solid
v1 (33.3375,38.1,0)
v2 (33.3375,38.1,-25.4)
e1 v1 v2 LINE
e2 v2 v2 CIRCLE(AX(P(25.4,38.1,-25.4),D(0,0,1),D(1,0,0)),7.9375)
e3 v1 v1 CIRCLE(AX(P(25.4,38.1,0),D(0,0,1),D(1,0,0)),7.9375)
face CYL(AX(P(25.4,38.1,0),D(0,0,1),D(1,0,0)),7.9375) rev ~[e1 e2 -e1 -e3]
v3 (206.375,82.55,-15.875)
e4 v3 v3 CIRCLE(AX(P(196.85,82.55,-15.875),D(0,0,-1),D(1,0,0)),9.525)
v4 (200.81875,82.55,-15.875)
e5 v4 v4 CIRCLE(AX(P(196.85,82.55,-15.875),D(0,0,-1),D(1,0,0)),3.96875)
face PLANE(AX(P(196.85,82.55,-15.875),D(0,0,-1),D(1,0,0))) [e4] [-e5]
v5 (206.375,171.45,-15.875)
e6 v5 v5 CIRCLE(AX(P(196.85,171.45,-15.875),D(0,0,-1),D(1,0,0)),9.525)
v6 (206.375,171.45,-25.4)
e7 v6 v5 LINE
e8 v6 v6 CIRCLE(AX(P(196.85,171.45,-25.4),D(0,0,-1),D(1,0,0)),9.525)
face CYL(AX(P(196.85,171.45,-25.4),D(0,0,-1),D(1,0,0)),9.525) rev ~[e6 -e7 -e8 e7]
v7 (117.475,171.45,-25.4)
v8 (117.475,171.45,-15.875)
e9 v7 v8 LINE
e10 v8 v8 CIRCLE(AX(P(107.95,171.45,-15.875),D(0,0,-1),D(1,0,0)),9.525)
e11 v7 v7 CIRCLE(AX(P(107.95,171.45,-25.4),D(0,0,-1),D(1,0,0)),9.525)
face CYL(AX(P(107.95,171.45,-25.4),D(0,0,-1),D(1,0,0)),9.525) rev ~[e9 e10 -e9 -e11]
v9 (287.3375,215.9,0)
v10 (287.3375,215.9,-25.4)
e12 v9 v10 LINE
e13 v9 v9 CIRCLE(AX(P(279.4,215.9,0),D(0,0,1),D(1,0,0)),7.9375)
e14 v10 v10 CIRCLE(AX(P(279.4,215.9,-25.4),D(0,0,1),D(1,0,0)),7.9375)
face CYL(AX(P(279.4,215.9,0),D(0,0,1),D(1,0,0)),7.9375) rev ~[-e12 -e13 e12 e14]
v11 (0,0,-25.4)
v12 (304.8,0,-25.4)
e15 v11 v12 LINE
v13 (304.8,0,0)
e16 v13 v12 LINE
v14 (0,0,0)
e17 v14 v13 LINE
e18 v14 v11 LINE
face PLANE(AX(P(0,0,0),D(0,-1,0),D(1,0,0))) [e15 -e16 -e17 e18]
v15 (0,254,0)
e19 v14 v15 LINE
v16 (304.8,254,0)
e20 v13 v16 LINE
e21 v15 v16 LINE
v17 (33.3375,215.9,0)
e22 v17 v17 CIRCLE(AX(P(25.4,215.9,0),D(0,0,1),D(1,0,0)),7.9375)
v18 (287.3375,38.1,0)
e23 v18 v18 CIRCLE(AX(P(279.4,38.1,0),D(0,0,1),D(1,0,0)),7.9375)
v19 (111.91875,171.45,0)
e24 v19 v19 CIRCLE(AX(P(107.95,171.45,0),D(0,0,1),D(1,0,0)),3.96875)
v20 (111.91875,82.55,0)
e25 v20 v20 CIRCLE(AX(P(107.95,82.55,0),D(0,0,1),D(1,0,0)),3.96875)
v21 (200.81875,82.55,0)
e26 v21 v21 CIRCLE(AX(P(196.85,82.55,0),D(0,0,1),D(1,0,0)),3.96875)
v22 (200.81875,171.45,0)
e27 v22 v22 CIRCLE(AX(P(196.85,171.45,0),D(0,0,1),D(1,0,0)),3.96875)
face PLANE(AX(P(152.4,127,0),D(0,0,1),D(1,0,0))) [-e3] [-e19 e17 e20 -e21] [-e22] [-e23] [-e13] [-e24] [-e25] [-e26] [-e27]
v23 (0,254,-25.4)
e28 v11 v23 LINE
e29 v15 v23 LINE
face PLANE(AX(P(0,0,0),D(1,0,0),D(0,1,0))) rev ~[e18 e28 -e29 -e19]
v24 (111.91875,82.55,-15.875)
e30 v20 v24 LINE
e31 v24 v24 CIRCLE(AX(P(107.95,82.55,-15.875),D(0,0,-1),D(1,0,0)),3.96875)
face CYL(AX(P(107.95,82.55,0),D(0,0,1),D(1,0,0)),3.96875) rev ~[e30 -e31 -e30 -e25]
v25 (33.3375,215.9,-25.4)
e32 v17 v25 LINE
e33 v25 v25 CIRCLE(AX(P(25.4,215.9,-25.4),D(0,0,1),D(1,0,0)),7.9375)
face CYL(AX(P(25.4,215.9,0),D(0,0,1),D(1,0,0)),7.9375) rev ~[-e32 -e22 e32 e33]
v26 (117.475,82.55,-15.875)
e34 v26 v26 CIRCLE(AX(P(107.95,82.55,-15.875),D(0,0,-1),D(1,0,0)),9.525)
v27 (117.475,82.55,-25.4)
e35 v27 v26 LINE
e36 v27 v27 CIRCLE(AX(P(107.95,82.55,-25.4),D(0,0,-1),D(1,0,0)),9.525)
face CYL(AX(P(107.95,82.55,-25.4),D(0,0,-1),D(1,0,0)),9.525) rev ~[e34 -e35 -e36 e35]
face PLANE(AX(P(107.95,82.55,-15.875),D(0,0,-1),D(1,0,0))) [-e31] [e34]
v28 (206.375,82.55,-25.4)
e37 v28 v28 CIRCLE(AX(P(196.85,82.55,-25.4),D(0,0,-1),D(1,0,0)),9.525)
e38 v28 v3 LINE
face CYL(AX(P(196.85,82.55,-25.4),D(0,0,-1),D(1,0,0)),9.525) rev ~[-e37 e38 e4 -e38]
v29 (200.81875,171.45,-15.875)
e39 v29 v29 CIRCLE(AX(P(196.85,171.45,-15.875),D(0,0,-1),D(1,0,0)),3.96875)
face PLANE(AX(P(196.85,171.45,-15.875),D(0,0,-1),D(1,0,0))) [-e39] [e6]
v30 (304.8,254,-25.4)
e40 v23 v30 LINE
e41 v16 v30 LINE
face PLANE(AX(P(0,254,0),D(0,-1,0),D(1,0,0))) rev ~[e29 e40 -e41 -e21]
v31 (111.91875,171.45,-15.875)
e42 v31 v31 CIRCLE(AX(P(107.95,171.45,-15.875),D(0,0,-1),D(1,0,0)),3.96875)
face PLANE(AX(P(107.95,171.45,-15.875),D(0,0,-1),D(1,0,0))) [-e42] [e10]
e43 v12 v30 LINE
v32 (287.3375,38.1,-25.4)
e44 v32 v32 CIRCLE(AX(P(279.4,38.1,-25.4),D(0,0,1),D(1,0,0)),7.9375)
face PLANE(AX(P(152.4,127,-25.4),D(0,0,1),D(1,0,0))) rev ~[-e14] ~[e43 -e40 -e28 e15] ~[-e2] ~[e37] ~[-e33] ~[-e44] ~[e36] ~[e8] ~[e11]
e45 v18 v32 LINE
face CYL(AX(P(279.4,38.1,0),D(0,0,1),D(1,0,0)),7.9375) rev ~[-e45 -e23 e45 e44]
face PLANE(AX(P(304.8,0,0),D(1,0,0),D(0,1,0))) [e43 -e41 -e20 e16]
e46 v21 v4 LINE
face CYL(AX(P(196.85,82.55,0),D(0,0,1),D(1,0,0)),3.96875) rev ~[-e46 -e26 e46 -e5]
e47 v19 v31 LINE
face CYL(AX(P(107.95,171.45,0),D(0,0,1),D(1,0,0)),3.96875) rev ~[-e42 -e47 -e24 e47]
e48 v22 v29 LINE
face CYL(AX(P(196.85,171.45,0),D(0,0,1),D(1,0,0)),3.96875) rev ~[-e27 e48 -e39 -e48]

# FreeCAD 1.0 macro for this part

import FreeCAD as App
import Part
import Sketcher
Q = App.Units.Quantity

doc = App.newDocument("Part")
body = doc.addObject("PartDesign::Body", "Body")

sketch1 = body.newObject("Sketcher::SketchObject", "Sketch")
sketch1.AttachmentSupport = (doc.getObject("XY_Plane"), [""])
sketch1.MapMode = "FlatFace"
sketch1.addGeometry([
    Part.LineSegment(App.Vector(0, 254, 0), App.Vector(0, 0, 0)),
    Part.LineSegment(App.Vector(0, 0, 0), App.Vector(305, 0, 0)),
    Part.LineSegment(App.Vector(305, 0, 0), App.Vector(305, 254, 0)),
    Part.LineSegment(App.Vector(305, 254, 0), App.Vector(0, 254, 0)),
], False)
sketch1.addConstraint([
    Sketcher.Constraint("Coincident", 0, 2, 1, 1),
    Sketcher.Constraint("Coincident", 1, 2, 2, 1),
    Sketcher.Constraint("Coincident", 2, 2, 3, 1),
    Sketcher.Constraint("Coincident", 3, 2, 0, 1),
    Sketcher.Constraint("Vertical", 0),
    Sketcher.Constraint("Horizontal", 1),
    Sketcher.Constraint("Vertical", 2),
    Sketcher.Constraint("Horizontal", 3),
    Sketcher.Constraint("Coincident", 0, 2, -1, 1),
    Sketcher.Constraint("DistanceX", 1, 1, 1, 2, Q("12 in")),
    Sketcher.Constraint("DistanceY", 0, 2, 0, 1, Q("10 in")),
])
pad1 = body.newObject("PartDesign::Pad", "Pad")
pad1.Profile = sketch1
pad1.Length = Q("1 in")
pad1.Reversed = True

sketch2 = body.newObject("Sketcher::SketchObject", "Sketch001")
sketch2.AttachmentSupport = (doc.getObject("XY_Plane"), [""])
sketch2.MapMode = "FlatFace"
sketch2.addGeometry([
    Part.Circle(App.Vector(108, 171.4, 0), App.Vector(0, 0, 1), 4),
    Part.Circle(App.Vector(196.8, 171.4, 0), App.Vector(0, 0, 1), 4),
    Part.Circle(App.Vector(196.8, 82.5, 0), App.Vector(0, 0, 1), 4),
    Part.Circle(App.Vector(108, 82.5, 0), App.Vector(0, 0, 1), 4),
], False)
sketch2.addConstraint([
    Sketcher.Constraint("Equal", 0, 1),
    Sketcher.Constraint("Equal", 1, 2),
    Sketcher.Constraint("Equal", 2, 3),
    Sketcher.Constraint("Horizontal", 0, 3, 1, 3),
    Sketcher.Constraint("Horizontal", 2, 3, 3, 3),
    Sketcher.Constraint("Vertical", 1, 3, 2, 3),
    Sketcher.Constraint("Vertical", 0, 3, 3, 3),
    Sketcher.Constraint("Diameter", 0, Q("0.3125 in")),
    Sketcher.Constraint("DistanceX", 0, 3, 1, 3, Q("3.5 in")),
    Sketcher.Constraint("DistanceY", 2, 3, 1, 3, Q("3.5 in")),
    Sketcher.Constraint("DistanceX", -1, 1, 0, 3, Q("4.25 in")),
    Sketcher.Constraint("DistanceY", -1, 1, 0, 3, Q("6.75 in")),
])
pocket1 = body.newObject("PartDesign::Pocket", "Pocket")
pocket1.Profile = sketch2
pocket1.Length = Q("1 in")

sketch3 = body.newObject("Sketcher::SketchObject", "Sketch002")
sketch3.AttachmentSupport = (doc.getObject("XY_Plane"), [""])
sketch3.MapMode = "FlatFace"
sketch3.AttachmentOffset = App.Placement(App.Vector(0, 0, -1 * 25.4), App.Rotation())
sketch3.addGeometry([
    Part.Circle(App.Vector(108, 171.4, 0), App.Vector(0, 0, 1), 9.5),
    Part.Circle(App.Vector(108, 171.4, 0), App.Vector(0, 0, 1), 4),
    Part.Circle(App.Vector(196.8, 171.4, 0), App.Vector(0, 0, 1), 9.5),
    Part.Circle(App.Vector(196.8, 171.4, 0), App.Vector(0, 0, 1), 4),
    Part.Circle(App.Vector(108, 82.5, 0), App.Vector(0, 0, 1), 9.5),
    Part.Circle(App.Vector(108, 82.5, 0), App.Vector(0, 0, 1), 4),
    Part.Circle(App.Vector(196.8, 82.5, 0), App.Vector(0, 0, 1), 9.5),
    Part.Circle(App.Vector(196.8, 82.5, 0), App.Vector(0, 0, 1), 4),
], False)
sketch3.addConstraint([
    Sketcher.Constraint("Coincident", 1, 3, 0, 3),
    Sketcher.Constraint("Coincident", 3, 3, 2, 3),
    Sketcher.Constraint("Coincident", 5, 3, 4, 3),
    Sketcher.Constraint("Coincident", 7, 3, 6, 3),
    Sketcher.Constraint("Equal", 0, 2),
    Sketcher.Constraint("Equal", 1, 3),
    Sketcher.Constraint("Equal", 2, 4),
    Sketcher.Constraint("Equal", 3, 5),
    Sketcher.Constraint("Equal", 4, 6),
    Sketcher.Constraint("Equal", 5, 7),
    Sketcher.Constraint("Horizontal", 1, 3, 2, 3),
    Sketcher.Constraint("Horizontal", 5, 3, 6, 3),
    Sketcher.Constraint("Vertical", 1, 3, 4, 3),
    Sketcher.Constraint("Vertical", 3, 3, 6, 3),
    Sketcher.Constraint("Diameter", 0, Q("0.75 in")),
    Sketcher.Constraint("Diameter", 1, Q("0.3125 in")),
    Sketcher.Constraint("DistanceX", 0, 3, 2, 3, Q("3.5 in")),
    Sketcher.Constraint("DistanceY", 4, 3, 0, 3, Q("3.5 in")),
    Sketcher.Constraint("DistanceX", -1, 1, 0, 3, Q("4.25 in")),
    Sketcher.Constraint("DistanceY", -1, 1, 0, 3, Q("6.75 in")),
])
pocket2 = body.newObject("PartDesign::Pocket", "Pocket001")
pocket2.Profile = sketch3
pocket2.Length = Q("0.375 in")
pocket2.Reversed = True

sketch4 = body.newObject("Sketcher::SketchObject", "Sketch003")
sketch4.AttachmentSupport = (doc.getObject("XY_Plane"), [""])
sketch4.MapMode = "FlatFace"
sketch4.addGeometry([
    Part.Circle(App.Vector(108, 171.4, 0), App.Vector(0, 0, 1), 4),
    Part.Circle(App.Vector(196.8, 171.4, 0), App.Vector(0, 0, 1), 4),
    Part.Circle(App.Vector(108, 82.5, 0), App.Vector(0, 0, 1), 4),
    Part.Circle(App.Vector(196.8, 82.5, 0), App.Vector(0, 0, 1), 4),
    Part.Circle(App.Vector(25.4, 215.9, 0), App.Vector(0, 0, 1), 7.9),
    Part.Circle(App.Vector(279.4, 215.9, 0), App.Vector(0, 0, 1), 7.9),
    Part.Circle(App.Vector(279.4, 38.1, 0), App.Vector(0, 0, 1), 7.9),
    Part.Circle(App.Vector(25.4, 38.1, 0), App.Vector(0, 0, 1), 7.9),
], False)
sketch4.addConstraint([
    Sketcher.Constraint("Equal", 0, 1),
    Sketcher.Constraint("Equal", 1, 2),
    Sketcher.Constraint("Equal", 2, 3),
    Sketcher.Constraint("Equal", 4, 5),
    Sketcher.Constraint("Equal", 5, 6),
    Sketcher.Constraint("Equal", 6, 7),
    Sketcher.Constraint("Horizontal", 0, 3, 1, 3),
    Sketcher.Constraint("Horizontal", 2, 3, 3, 3),
    Sketcher.Constraint("Horizontal", 4, 3, 5, 3),
    Sketcher.Constraint("Horizontal", 6, 3, 7, 3),
    Sketcher.Constraint("Vertical", 0, 3, 2, 3),
    Sketcher.Constraint("Vertical", 1, 3, 3, 3),
    Sketcher.Constraint("Vertical", 5, 3, 6, 3),
    Sketcher.Constraint("Vertical", 4, 3, 7, 3),
    Sketcher.Constraint("Diameter", 0, Q("0.3125 in")),
    Sketcher.Constraint("Diameter", 4, Q("0.625 in")),
    Sketcher.Constraint("DistanceX", -1, 1, 4, 3, Q("1 in")),
    Sketcher.Constraint("DistanceX", -1, 1, 5, 3, Q("11 in")),
    Sketcher.Constraint("DistanceY", 6, 3, 5, 3, Q("7 in")),
    Sketcher.Constraint("DistanceY", -1, 1, 4, 3, Q("8.5 in")),
    Sketcher.Constraint("DistanceX", 0, 3, 1, 3, Q("3.5 in")),
    Sketcher.Constraint("DistanceY", 2, 3, 0, 3, Q("3.5 in")),
    Sketcher.Constraint("DistanceX", -1, 1, 0, 3, Q("4.25 in")),
    Sketcher.Constraint("DistanceY", -1, 1, 0, 3, Q("6.75 in")),
])
pocket3 = body.newObject("PartDesign::Pocket", "Pocket002")
pocket3.Profile = sketch4
pocket3.Length = Q("1 in")

doc.recompute()
